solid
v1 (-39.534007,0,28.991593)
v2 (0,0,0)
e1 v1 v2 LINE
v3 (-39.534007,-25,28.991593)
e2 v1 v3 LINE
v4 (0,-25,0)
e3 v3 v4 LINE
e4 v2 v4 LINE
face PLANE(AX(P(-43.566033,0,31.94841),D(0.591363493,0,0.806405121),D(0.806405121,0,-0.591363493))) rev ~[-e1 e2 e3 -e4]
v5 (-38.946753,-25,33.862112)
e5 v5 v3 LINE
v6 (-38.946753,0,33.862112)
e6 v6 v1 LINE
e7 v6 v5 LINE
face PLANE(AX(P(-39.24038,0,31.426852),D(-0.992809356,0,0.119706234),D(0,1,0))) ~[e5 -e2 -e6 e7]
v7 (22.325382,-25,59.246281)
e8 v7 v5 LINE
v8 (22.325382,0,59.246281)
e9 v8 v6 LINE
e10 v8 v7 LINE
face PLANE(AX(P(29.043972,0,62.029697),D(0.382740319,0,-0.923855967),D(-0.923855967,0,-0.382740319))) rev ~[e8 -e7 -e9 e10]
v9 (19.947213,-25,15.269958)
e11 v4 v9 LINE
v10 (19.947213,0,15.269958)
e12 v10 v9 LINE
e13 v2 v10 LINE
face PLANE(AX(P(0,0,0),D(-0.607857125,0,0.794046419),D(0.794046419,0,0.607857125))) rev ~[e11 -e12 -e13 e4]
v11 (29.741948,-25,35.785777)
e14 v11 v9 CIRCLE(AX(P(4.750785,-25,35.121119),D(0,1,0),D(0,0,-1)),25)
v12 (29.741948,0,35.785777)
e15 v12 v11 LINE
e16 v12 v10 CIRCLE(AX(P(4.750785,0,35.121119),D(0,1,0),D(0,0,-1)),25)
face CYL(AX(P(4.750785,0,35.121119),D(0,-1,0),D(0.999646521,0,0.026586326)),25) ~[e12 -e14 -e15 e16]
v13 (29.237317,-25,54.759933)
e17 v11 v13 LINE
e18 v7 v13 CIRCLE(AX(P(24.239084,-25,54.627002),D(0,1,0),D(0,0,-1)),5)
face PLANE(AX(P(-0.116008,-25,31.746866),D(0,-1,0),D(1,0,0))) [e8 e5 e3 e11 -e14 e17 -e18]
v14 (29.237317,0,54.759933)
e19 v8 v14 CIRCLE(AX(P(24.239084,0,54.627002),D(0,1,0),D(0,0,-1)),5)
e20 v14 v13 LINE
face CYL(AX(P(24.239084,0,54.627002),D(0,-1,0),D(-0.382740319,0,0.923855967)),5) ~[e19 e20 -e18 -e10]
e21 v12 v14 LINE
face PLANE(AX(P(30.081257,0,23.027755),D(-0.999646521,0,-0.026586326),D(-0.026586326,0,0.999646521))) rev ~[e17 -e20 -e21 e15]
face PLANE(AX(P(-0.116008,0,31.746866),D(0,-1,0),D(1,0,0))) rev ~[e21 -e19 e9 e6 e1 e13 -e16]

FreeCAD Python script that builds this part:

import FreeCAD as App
import Part
import Sketcher
from FreeCAD import Vector
Q = App.Units.Quantity


def edges_at(feature, points):
    """Names of the edges that pass closest to the given points."""
    edges = feature.Shape.Edges
    near = lambda p: min(range(len(edges)), key=lambda i: edges[i].distToShape(Part.Vertex(*p))[0])
    return sorted({f"Edge{near(p) + 1}" for p in points})


def add_polygon(sketch, points):
    """Adds a closed chain of lines whose ends are joined by coincident constraints."""
    first, n = sketch.GeometryCount, len(points)
    for a, b in zip(points, points[1:] + points[:1]):
        sketch.addGeometry(Part.LineSegment(App.Vector(*a, 0), App.Vector(*b, 0)), False)
    for i in range(n):
        sketch.addConstraint(Sketcher.Constraint("Coincident", first + i, 2, first + (i + 1) % n, 1))

doc = App.newDocument("Part")
params = doc.addObject("Spreadsheet::Sheet", "Params")
for row, (alias, value) in enumerate([
    ("pad1_length", "25 mm"),
    ("chamfer_size", "5 mm"),
    ("fillet_radius", "5 mm"),
    ("fillet2_radius", "25 mm"),
    ("pad2_length", "25 mm"),
], start=1):
    params.set(f"A{row}", alias)
    params.set(f"B{row}", "=" + value)
    params.setAlias(f"B{row}", alias)

body = doc.addObject("PartDesign::Body", "Body")

sketch1 = body.newObject("Sketcher::SketchObject", "Sketch")
sketch1.AttachmentSupport = (doc.getObject("XZ_Plane"), [""])
sketch1.MapMode = "FlatFace"
add_polygon(sketch1, [(0, 0), (30, 23), (29, 62), (-44, 32)])
sketch1.addConstraint([
    Sketcher.Constraint("Coincident", 3, 2, -1, 1),
    Sketcher.Constraint("Distance", 0, Q("37.883499 mm")),
    Sketcher.Constraint("DistanceX", -1, 1, 1, 2, Q("29.043972 mm")),
    Sketcher.Constraint("DistanceY", -1, 1, 2, 2, Q("31.94841 mm")),
    Sketcher.Constraint("DistanceX", 2, 2, 0, 2, Q("73.64729 mm")),
    Sketcher.Constraint("Distance", 1, Q("39.015733 mm")),
    Sketcher.Constraint("Distance", 2, Q("78.594508 mm")),
])
pad1 = body.newObject("PartDesign::Pad", "Pad")
pad1.Profile = sketch1
pad1.setExpression("Length", "Params.pad1_length")
doc.recompute()

chamfer = body.newObject("PartDesign::Chamfer", "Chamfer")
chamfer.Base = (pad1, edges_at(pad1, [(-43.566, -12.5, 31.948)]))
chamfer.setExpression("Size", "Params.chamfer_size")
doc.recompute()

fillet = body.newObject("PartDesign::Fillet", "Fillet")
fillet.Base = (chamfer, edges_at(chamfer, [(29.044, -12.5, 62.03)]))
fillet.setExpression("Radius", "Params.fillet_radius")
doc.recompute()

fillet2 = body.newObject("PartDesign::Fillet", "Fillet001")
fillet2.Base = (fillet, edges_at(fillet, [(30.081, -12.5, 23.028)]))
fillet2.setExpression("Radius", "Params.fillet2_radius")

sketch2 = body.newObject("Sketcher::SketchObject", "Sketch001")
sketch2.AttachmentSupport = (doc.getObject("XZ_Plane"), [""])
sketch2.MapMode = "FlatFace"
sketch2.AttachmentOffset = App.Placement(Vector(0, 0, 25), App.Rotation())
sketch2.addGeometry(Part.Circle(Vector(0, 40, 0), Vector(0, 0, 1), 7), False)
sketch2.addConstraint([
    Sketcher.Constraint("PointOnObject", 0, 3, -2),
    Sketcher.Constraint("Diameter", 0, Q("14.099504 mm")),
    Sketcher.Constraint("DistanceY", -1, 1, 0, 3, Q("40.225446 mm")),
])
pad2 = body.newObject("PartDesign::Pad", "Pad001")
pad2.Profile = sketch2
pad2.setExpression("Length", "Params.pad2_length")
pad2.Reversed = True

doc.recompute()
